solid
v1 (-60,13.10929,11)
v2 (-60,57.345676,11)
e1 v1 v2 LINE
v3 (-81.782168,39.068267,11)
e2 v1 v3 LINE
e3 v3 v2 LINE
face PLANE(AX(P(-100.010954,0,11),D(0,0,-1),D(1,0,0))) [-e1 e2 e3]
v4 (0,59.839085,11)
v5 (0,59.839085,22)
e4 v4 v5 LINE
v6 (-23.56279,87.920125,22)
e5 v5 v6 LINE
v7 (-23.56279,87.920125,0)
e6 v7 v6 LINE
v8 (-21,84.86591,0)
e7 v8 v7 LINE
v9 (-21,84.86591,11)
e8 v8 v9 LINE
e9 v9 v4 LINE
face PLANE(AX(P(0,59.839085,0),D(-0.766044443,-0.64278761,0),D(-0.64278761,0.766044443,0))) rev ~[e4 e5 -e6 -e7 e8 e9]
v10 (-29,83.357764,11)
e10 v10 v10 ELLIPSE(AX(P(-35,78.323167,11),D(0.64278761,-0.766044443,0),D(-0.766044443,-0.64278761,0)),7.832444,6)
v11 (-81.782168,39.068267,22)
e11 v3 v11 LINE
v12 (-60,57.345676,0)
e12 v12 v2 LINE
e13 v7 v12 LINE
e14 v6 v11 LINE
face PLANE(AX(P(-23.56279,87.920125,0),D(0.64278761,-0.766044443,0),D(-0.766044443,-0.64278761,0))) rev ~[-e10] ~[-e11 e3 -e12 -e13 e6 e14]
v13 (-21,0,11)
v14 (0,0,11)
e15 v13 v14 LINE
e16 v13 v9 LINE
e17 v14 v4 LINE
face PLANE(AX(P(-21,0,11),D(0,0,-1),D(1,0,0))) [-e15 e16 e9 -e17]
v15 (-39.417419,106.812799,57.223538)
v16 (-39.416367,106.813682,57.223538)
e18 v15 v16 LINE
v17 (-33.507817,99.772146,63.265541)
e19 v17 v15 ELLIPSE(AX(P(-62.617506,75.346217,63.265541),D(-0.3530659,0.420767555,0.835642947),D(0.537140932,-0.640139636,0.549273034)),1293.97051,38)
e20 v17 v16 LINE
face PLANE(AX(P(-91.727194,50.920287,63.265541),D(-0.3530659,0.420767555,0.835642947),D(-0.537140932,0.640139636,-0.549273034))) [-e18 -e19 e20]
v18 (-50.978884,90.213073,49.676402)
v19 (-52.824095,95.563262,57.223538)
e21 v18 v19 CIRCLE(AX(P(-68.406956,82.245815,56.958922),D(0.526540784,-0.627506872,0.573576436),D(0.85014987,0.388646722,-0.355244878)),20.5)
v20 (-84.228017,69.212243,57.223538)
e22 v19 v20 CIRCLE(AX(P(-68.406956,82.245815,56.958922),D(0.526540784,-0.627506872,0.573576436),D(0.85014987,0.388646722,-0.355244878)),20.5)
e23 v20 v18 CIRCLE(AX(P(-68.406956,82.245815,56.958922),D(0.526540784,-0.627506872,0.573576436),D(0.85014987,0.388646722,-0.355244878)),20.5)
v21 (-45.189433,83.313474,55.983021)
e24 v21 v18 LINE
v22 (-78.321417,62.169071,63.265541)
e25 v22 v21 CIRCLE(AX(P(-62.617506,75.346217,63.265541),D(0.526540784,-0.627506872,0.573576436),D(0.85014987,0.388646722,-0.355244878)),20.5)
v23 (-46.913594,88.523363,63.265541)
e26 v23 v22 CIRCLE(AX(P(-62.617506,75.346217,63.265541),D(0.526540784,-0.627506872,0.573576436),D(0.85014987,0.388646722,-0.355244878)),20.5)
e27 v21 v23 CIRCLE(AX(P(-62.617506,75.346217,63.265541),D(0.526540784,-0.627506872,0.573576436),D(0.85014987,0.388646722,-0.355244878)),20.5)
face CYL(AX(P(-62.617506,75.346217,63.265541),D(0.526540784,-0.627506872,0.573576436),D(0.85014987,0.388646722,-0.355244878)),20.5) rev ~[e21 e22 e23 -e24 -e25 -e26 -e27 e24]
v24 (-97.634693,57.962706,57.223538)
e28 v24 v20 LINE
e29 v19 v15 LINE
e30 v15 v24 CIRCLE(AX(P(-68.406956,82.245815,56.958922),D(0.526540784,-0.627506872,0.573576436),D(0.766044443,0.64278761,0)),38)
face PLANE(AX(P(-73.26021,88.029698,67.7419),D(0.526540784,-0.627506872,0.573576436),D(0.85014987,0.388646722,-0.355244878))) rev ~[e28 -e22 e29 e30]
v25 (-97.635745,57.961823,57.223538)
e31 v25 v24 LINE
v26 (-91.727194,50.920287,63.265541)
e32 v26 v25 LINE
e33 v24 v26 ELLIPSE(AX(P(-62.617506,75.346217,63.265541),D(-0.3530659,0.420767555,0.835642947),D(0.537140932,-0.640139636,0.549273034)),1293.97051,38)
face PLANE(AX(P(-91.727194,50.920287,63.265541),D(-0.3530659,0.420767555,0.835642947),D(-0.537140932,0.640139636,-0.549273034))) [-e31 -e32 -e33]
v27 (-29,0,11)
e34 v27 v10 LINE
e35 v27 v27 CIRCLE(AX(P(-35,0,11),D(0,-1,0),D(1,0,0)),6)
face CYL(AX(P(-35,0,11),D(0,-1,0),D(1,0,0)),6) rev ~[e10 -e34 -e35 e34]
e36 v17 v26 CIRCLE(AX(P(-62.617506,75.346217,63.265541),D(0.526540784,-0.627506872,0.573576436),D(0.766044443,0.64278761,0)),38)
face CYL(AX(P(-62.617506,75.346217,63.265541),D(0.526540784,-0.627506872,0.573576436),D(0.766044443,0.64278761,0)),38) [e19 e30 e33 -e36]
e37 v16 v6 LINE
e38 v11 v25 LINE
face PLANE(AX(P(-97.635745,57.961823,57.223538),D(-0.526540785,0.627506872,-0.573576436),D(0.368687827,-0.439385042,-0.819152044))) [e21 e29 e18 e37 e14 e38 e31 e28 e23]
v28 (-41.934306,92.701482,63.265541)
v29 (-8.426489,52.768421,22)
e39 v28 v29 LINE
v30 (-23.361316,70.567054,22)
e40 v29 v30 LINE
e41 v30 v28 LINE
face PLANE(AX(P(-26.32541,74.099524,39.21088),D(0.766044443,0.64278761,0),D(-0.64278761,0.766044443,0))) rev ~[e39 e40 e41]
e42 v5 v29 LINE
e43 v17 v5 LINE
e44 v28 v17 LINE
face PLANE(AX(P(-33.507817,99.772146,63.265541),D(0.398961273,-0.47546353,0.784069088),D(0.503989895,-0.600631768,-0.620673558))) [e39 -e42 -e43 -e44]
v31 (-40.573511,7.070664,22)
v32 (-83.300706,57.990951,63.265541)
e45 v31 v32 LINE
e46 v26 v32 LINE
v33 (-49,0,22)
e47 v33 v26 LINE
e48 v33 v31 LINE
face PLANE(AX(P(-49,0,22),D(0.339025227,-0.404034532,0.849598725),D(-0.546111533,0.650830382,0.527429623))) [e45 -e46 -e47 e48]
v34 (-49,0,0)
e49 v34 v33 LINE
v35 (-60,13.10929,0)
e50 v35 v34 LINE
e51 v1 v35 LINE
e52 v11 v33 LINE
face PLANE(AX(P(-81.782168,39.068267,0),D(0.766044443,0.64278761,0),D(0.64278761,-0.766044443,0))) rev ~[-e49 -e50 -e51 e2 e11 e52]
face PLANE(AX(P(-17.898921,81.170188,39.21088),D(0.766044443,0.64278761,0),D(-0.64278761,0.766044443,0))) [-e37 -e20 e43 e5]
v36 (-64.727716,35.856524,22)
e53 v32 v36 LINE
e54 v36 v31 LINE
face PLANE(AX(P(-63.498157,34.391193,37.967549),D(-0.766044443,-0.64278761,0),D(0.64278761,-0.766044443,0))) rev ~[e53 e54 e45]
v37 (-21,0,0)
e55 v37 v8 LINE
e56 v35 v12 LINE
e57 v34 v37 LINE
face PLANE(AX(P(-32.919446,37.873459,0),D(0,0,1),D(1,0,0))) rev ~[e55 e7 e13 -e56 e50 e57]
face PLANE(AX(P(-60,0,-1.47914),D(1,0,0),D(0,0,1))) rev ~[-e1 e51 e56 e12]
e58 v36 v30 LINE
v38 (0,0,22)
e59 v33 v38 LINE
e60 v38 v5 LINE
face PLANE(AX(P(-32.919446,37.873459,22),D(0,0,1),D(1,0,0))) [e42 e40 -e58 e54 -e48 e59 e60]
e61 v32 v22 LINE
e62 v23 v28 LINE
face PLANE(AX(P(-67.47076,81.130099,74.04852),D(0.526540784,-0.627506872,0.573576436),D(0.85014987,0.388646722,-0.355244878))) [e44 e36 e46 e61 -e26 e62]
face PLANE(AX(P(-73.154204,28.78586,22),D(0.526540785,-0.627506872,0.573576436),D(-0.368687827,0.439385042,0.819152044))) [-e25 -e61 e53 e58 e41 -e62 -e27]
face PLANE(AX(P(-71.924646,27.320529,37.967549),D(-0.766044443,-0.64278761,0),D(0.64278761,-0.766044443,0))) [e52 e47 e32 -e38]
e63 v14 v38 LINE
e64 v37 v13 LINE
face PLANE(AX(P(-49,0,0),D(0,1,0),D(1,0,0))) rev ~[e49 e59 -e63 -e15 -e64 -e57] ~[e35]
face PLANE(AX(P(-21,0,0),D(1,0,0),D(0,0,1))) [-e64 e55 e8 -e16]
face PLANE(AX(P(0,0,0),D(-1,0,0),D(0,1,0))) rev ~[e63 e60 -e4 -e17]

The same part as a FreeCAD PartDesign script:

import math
import FreeCAD as App
import Part
import Sketcher
from FreeCAD import Vector
Q = App.Units.Quantity


def add_polygon(sketch, points):
    """Adds a closed chain of lines whose ends are joined by coincident constraints."""
    first, n = sketch.GeometryCount, len(points)
    for a, b in zip(points, points[1:] + points[:1]):
        sketch.addGeometry(Part.LineSegment(App.Vector(*a, 0), App.Vector(*b, 0)), False)
    for i in range(n):
        sketch.addConstraint(Sketcher.Constraint("Coincident", first + i, 2, first + (i + 1) % n, 1))

doc = App.newDocument("Part")
body = doc.addObject("PartDesign::Body", "Body")

sketch1 = body.newObject("Sketcher::SketchObject", "Sketch")
sketch1.AttachmentSupport = (doc.getObject("XY_Plane"), [""])
sketch1.MapMode = "FlatFace"
add_polygon(sketch1, [(-49, 0), (0, 0), (0, 59.839085), (-23.56279, 87.920125), (-81.782168, 39.068267)])
sketch1.addConstraint([
    Sketcher.Constraint("Horizontal", 0),
    Sketcher.Constraint("Vertical", 1),
    Sketcher.Constraint("Coincident", 0, 2, -1, 1),
    Sketcher.Constraint("Perpendicular", 2, 3),
    Sketcher.Constraint("Perpendicular", 3, 4),
    Sketcher.Constraint("DistanceX", 0, 1, 0, 2, 49.0),
    Sketcher.Constraint("Angle", 2, Q("130 deg")),
    Sketcher.Constraint("Distance", 3, 76.0),
    Sketcher.Constraint("Distance", 4, 51.0),
])
pad1 = body.newObject("PartDesign::Pad", "Pad")
pad1.Profile = sketch1
pad1.Length = 22

sketch2 = body.newObject("Sketcher::SketchObject", "Sketch001")
sketch2.AttachmentSupport = (doc.getObject("XZ_Plane"), [""])
sketch2.MapMode = "FlatFace"
add_polygon(sketch2, [(-21, 11), (-21, 0), (0, 0), (0, 11)])
add_polygon(sketch2, [(-100.010954, 11), (-100.010954, -1.47914), (-60, -1.47914), (-60, 11)])
sketch2.addConstraint([
    Sketcher.Constraint("Vertical", 0),
    Sketcher.Constraint("Horizontal", 1),
    Sketcher.Constraint("Vertical", 2),
    Sketcher.Constraint("Horizontal", 3),
    Sketcher.Constraint("Vertical", 4),
    Sketcher.Constraint("Horizontal", 5),
    Sketcher.Constraint("Vertical", 6),
    Sketcher.Constraint("Horizontal", 7),
    Sketcher.Constraint("Coincident", 1, 2, -1, 1),
    Sketcher.Constraint("Horizontal", 3, 2, 6, 2),
    Sketcher.Constraint("DistanceX", 1, 1, 1, 2, 21.0),
    Sketcher.Constraint("DistanceY", 0, 2, 0, 1, 11.0),
    Sketcher.Constraint("DistanceX", 5, 2, -1, 1, 60.0),
    Sketcher.Constraint("DistanceY", 4, 2, 4, 1, 12.47914),
    Sketcher.Constraint("DistanceX", 5, 1, 5, 2, 40.010954),
])
pocket1 = body.newObject("PartDesign::Pocket", "Pocket")
pocket1.Profile = sketch2
pocket1.Type = "ThroughAll"

sketch3 = body.newObject("Sketcher::SketchObject", "Sketch002")
sketch3.AttachmentSupport = (doc.getObject("XZ_Plane"), [""])
sketch3.MapMode = "FlatFace"
sketch3.addGeometry(Part.Circle(Vector(-35, 11, 0), Vector(0, 0, 1), 6), False)
sketch3.addConstraint([
    Sketcher.Constraint("Diameter", 0, 12.0),
    Sketcher.Constraint("DistanceX", 0, 3, -1, 1, 35.0),
    Sketcher.Constraint("DistanceY", -1, 1, 0, 3, 11.0),
])
pocket2 = body.newObject("PartDesign::Pocket", "Pocket001")
pocket2.Profile = sketch3
pocket2.Type = "ThroughAll"

sketch4 = body.newObject("Sketcher::SketchObject", "Sketch003")
sketch4.Placement = App.Placement(Vector(-28.75438, -24.12779, 0), App.Rotation(Vector(0.64278761, -0.766044443, 0), Vector(0, 0, 1), Vector(-0.766044443, -0.64278761, 0), "ZXY"))
add_polygon(sketch4, [(-107.16038, 57.223538), (-82.496593, 22), (-69.073864, 22), (-97.968307, 63.265541)])
sketch4.addConstraint([
    Sketcher.Constraint("Horizontal", 1),
    Sketcher.Constraint("Parallel", 0, 2),
    Sketcher.Constraint("Angle", 0, Q("-55 deg")),
    Sketcher.Constraint("Distance", 0, 43.0),
    Sketcher.Constraint("Distance", 3, 11.0),
    Sketcher.Constraint("DistanceY", -1, 1, 0, 2, 22.0),
    Sketcher.Constraint("DistanceX", 1, 1, 1, 2, 13.422729),
    Sketcher.Constraint("DistanceX", 3, 2, -1, 1, 107.16038),
])
pad2 = body.newObject("PartDesign::Pad", "Pad001")
pad2.Profile = sketch4
pad2.Length = 76
pad2.Reversed = True

sketch5 = body.newObject("Sketcher::SketchObject", "Sketch004")
sketch5.Placement = App.Placement(Vector(-23.148479, 27.587283, -25.216322), App.Rotation(Vector(0.85014987, 0.388646722, -0.355244878), Vector(0.000000001, 0.674676849, 0.738113235), Vector(0.526540784, -0.627506872, 0.573576436), "ZXY"))
sketch5.addGeometry([
    Part.LineSegment(Vector(-80.666619, 81.051872, 0), Vector(-12.185308, 114.01109, 0)),
    Part.ArcOfCircle(Part.Circle(Vector(-46.425964, 97.531481, 0), Vector(0, 0, 1), 38), math.radians(25.700943), math.radians(205.700943)),
], False)
sketch5.addConstraint([
    Sketcher.Constraint("Coincident", 0, 1, 1, 2),
    Sketcher.Constraint("Coincident", 1, 1, 0, 2),
    Sketcher.Constraint("Radius", 1, 38.0),
    Sketcher.Constraint("DistanceY", -1, 1, 1, 3, 97.531481),
    Sketcher.Constraint("DistanceX", 0, 1, -1, 1, 80.666619),
    Sketcher.Constraint("DistanceX", 1, 1, -1, 1, 12.185308),
    Sketcher.Constraint("DistanceY", -1, 1, 1, 1, 114.01109),
])
pad3 = body.newObject("PartDesign::Pad", "Pad002")
pad3.Profile = sketch5
pad3.Length = 10.995256
pad3.Reversed = True

sketch6 = body.newObject("Sketcher::SketchObject", "Sketch005")
sketch6.Placement = App.Placement(Vector(-23.148479, 27.587283, -25.216322), App.Rotation(Vector(0.85014987, 0.388646722, -0.355244878), Vector(0.000000001, 0.674676849, 0.738113235), Vector(0.526540784, -0.627506872, 0.573576436), "ZXY"))
sketch6.addGeometry(Part.Circle(Vector(-46.425964, 97.531481, 0), Vector(0, 0, 1), 20.5), False)
sketch6.addConstraint([
    Sketcher.Constraint("Diameter", 0, 41.0),
    Sketcher.Constraint("DistanceY", -1, 1, 0, 3, 97.531481),
    Sketcher.Constraint("DistanceX", 0, 3, -1, 1, 46.425964),
])
pocket3 = body.newObject("PartDesign::Pocket", "Pocket002")
pocket3.Profile = sketch6
pocket3.Type = "ThroughAll"

sketch7 = body.newObject("Sketcher::SketchObject", "Sketch006")
sketch7.Placement = App.Placement(Vector(-28.75438, -24.12779, 0), App.Rotation(Vector(0.64278761, -0.766044443, 0), Vector(0, 0, 1), Vector(-0.766044443, -0.64278761, 0), "ZXY"))
add_polygon(sketch7, [(-31.496593, 22), (-97.968307, 63.265541), (-69.073864, 22)])
sketch7.addConstraint([
    Sketcher.Constraint("Horizontal", 2),
    Sketcher.Constraint("Angle", 1, Q("-55 deg")),
    Sketcher.Constraint("DistanceY", -1, 1, 1, 2, 22.0),
    Sketcher.Constraint("DistanceX", 2, 1, 2, 2, 37.577271),
    Sketcher.Constraint("DistanceY", -1, 1, 0, 2, 63.265541),
    Sketcher.Constraint("DistanceX", 0, 2, -1, 1, 97.968307),
])
pad4 = body.newObject("PartDesign::Pad", "Pad003")
pad4.Profile = sketch7
pad4.Length = 11
pad4.Reversed = True

sketch8 = body.newObject("Sketcher::SketchObject", "Sketch007")
sketch8.Placement = App.Placement(Vector(29.464997, 24.724068, 0), App.Rotation(Vector(-0.64278761, 0.766044443, 0), Vector(0, 0, 1), Vector(0.766044443, 0.64278761, 0), "ZXY"))
add_polygon(sketch8, [(69.073864, 22), (97.968307, 63.265541), (45.839398, 22)])
sketch8.addConstraint([
    Sketcher.Constraint("Horizontal", 2),
    Sketcher.Constraint("Angle", 0, Q("55 deg")),
    Sketcher.Constraint("DistanceY", -1, 1, 1, 2, 22.0),
    Sketcher.Constraint("DistanceX", -1, 1, 1, 2, 45.839398),
    Sketcher.Constraint("DistanceX", 2, 1, 2, 2, 23.234466),
    Sketcher.Constraint("DistanceY", -1, 1, 0, 2, 63.265541),
])
pad5 = body.newObject("PartDesign::Pad", "Pad004")
pad5.Profile = sketch8
pad5.Length = 11
pad5.Reversed = True

doc.recompute()
